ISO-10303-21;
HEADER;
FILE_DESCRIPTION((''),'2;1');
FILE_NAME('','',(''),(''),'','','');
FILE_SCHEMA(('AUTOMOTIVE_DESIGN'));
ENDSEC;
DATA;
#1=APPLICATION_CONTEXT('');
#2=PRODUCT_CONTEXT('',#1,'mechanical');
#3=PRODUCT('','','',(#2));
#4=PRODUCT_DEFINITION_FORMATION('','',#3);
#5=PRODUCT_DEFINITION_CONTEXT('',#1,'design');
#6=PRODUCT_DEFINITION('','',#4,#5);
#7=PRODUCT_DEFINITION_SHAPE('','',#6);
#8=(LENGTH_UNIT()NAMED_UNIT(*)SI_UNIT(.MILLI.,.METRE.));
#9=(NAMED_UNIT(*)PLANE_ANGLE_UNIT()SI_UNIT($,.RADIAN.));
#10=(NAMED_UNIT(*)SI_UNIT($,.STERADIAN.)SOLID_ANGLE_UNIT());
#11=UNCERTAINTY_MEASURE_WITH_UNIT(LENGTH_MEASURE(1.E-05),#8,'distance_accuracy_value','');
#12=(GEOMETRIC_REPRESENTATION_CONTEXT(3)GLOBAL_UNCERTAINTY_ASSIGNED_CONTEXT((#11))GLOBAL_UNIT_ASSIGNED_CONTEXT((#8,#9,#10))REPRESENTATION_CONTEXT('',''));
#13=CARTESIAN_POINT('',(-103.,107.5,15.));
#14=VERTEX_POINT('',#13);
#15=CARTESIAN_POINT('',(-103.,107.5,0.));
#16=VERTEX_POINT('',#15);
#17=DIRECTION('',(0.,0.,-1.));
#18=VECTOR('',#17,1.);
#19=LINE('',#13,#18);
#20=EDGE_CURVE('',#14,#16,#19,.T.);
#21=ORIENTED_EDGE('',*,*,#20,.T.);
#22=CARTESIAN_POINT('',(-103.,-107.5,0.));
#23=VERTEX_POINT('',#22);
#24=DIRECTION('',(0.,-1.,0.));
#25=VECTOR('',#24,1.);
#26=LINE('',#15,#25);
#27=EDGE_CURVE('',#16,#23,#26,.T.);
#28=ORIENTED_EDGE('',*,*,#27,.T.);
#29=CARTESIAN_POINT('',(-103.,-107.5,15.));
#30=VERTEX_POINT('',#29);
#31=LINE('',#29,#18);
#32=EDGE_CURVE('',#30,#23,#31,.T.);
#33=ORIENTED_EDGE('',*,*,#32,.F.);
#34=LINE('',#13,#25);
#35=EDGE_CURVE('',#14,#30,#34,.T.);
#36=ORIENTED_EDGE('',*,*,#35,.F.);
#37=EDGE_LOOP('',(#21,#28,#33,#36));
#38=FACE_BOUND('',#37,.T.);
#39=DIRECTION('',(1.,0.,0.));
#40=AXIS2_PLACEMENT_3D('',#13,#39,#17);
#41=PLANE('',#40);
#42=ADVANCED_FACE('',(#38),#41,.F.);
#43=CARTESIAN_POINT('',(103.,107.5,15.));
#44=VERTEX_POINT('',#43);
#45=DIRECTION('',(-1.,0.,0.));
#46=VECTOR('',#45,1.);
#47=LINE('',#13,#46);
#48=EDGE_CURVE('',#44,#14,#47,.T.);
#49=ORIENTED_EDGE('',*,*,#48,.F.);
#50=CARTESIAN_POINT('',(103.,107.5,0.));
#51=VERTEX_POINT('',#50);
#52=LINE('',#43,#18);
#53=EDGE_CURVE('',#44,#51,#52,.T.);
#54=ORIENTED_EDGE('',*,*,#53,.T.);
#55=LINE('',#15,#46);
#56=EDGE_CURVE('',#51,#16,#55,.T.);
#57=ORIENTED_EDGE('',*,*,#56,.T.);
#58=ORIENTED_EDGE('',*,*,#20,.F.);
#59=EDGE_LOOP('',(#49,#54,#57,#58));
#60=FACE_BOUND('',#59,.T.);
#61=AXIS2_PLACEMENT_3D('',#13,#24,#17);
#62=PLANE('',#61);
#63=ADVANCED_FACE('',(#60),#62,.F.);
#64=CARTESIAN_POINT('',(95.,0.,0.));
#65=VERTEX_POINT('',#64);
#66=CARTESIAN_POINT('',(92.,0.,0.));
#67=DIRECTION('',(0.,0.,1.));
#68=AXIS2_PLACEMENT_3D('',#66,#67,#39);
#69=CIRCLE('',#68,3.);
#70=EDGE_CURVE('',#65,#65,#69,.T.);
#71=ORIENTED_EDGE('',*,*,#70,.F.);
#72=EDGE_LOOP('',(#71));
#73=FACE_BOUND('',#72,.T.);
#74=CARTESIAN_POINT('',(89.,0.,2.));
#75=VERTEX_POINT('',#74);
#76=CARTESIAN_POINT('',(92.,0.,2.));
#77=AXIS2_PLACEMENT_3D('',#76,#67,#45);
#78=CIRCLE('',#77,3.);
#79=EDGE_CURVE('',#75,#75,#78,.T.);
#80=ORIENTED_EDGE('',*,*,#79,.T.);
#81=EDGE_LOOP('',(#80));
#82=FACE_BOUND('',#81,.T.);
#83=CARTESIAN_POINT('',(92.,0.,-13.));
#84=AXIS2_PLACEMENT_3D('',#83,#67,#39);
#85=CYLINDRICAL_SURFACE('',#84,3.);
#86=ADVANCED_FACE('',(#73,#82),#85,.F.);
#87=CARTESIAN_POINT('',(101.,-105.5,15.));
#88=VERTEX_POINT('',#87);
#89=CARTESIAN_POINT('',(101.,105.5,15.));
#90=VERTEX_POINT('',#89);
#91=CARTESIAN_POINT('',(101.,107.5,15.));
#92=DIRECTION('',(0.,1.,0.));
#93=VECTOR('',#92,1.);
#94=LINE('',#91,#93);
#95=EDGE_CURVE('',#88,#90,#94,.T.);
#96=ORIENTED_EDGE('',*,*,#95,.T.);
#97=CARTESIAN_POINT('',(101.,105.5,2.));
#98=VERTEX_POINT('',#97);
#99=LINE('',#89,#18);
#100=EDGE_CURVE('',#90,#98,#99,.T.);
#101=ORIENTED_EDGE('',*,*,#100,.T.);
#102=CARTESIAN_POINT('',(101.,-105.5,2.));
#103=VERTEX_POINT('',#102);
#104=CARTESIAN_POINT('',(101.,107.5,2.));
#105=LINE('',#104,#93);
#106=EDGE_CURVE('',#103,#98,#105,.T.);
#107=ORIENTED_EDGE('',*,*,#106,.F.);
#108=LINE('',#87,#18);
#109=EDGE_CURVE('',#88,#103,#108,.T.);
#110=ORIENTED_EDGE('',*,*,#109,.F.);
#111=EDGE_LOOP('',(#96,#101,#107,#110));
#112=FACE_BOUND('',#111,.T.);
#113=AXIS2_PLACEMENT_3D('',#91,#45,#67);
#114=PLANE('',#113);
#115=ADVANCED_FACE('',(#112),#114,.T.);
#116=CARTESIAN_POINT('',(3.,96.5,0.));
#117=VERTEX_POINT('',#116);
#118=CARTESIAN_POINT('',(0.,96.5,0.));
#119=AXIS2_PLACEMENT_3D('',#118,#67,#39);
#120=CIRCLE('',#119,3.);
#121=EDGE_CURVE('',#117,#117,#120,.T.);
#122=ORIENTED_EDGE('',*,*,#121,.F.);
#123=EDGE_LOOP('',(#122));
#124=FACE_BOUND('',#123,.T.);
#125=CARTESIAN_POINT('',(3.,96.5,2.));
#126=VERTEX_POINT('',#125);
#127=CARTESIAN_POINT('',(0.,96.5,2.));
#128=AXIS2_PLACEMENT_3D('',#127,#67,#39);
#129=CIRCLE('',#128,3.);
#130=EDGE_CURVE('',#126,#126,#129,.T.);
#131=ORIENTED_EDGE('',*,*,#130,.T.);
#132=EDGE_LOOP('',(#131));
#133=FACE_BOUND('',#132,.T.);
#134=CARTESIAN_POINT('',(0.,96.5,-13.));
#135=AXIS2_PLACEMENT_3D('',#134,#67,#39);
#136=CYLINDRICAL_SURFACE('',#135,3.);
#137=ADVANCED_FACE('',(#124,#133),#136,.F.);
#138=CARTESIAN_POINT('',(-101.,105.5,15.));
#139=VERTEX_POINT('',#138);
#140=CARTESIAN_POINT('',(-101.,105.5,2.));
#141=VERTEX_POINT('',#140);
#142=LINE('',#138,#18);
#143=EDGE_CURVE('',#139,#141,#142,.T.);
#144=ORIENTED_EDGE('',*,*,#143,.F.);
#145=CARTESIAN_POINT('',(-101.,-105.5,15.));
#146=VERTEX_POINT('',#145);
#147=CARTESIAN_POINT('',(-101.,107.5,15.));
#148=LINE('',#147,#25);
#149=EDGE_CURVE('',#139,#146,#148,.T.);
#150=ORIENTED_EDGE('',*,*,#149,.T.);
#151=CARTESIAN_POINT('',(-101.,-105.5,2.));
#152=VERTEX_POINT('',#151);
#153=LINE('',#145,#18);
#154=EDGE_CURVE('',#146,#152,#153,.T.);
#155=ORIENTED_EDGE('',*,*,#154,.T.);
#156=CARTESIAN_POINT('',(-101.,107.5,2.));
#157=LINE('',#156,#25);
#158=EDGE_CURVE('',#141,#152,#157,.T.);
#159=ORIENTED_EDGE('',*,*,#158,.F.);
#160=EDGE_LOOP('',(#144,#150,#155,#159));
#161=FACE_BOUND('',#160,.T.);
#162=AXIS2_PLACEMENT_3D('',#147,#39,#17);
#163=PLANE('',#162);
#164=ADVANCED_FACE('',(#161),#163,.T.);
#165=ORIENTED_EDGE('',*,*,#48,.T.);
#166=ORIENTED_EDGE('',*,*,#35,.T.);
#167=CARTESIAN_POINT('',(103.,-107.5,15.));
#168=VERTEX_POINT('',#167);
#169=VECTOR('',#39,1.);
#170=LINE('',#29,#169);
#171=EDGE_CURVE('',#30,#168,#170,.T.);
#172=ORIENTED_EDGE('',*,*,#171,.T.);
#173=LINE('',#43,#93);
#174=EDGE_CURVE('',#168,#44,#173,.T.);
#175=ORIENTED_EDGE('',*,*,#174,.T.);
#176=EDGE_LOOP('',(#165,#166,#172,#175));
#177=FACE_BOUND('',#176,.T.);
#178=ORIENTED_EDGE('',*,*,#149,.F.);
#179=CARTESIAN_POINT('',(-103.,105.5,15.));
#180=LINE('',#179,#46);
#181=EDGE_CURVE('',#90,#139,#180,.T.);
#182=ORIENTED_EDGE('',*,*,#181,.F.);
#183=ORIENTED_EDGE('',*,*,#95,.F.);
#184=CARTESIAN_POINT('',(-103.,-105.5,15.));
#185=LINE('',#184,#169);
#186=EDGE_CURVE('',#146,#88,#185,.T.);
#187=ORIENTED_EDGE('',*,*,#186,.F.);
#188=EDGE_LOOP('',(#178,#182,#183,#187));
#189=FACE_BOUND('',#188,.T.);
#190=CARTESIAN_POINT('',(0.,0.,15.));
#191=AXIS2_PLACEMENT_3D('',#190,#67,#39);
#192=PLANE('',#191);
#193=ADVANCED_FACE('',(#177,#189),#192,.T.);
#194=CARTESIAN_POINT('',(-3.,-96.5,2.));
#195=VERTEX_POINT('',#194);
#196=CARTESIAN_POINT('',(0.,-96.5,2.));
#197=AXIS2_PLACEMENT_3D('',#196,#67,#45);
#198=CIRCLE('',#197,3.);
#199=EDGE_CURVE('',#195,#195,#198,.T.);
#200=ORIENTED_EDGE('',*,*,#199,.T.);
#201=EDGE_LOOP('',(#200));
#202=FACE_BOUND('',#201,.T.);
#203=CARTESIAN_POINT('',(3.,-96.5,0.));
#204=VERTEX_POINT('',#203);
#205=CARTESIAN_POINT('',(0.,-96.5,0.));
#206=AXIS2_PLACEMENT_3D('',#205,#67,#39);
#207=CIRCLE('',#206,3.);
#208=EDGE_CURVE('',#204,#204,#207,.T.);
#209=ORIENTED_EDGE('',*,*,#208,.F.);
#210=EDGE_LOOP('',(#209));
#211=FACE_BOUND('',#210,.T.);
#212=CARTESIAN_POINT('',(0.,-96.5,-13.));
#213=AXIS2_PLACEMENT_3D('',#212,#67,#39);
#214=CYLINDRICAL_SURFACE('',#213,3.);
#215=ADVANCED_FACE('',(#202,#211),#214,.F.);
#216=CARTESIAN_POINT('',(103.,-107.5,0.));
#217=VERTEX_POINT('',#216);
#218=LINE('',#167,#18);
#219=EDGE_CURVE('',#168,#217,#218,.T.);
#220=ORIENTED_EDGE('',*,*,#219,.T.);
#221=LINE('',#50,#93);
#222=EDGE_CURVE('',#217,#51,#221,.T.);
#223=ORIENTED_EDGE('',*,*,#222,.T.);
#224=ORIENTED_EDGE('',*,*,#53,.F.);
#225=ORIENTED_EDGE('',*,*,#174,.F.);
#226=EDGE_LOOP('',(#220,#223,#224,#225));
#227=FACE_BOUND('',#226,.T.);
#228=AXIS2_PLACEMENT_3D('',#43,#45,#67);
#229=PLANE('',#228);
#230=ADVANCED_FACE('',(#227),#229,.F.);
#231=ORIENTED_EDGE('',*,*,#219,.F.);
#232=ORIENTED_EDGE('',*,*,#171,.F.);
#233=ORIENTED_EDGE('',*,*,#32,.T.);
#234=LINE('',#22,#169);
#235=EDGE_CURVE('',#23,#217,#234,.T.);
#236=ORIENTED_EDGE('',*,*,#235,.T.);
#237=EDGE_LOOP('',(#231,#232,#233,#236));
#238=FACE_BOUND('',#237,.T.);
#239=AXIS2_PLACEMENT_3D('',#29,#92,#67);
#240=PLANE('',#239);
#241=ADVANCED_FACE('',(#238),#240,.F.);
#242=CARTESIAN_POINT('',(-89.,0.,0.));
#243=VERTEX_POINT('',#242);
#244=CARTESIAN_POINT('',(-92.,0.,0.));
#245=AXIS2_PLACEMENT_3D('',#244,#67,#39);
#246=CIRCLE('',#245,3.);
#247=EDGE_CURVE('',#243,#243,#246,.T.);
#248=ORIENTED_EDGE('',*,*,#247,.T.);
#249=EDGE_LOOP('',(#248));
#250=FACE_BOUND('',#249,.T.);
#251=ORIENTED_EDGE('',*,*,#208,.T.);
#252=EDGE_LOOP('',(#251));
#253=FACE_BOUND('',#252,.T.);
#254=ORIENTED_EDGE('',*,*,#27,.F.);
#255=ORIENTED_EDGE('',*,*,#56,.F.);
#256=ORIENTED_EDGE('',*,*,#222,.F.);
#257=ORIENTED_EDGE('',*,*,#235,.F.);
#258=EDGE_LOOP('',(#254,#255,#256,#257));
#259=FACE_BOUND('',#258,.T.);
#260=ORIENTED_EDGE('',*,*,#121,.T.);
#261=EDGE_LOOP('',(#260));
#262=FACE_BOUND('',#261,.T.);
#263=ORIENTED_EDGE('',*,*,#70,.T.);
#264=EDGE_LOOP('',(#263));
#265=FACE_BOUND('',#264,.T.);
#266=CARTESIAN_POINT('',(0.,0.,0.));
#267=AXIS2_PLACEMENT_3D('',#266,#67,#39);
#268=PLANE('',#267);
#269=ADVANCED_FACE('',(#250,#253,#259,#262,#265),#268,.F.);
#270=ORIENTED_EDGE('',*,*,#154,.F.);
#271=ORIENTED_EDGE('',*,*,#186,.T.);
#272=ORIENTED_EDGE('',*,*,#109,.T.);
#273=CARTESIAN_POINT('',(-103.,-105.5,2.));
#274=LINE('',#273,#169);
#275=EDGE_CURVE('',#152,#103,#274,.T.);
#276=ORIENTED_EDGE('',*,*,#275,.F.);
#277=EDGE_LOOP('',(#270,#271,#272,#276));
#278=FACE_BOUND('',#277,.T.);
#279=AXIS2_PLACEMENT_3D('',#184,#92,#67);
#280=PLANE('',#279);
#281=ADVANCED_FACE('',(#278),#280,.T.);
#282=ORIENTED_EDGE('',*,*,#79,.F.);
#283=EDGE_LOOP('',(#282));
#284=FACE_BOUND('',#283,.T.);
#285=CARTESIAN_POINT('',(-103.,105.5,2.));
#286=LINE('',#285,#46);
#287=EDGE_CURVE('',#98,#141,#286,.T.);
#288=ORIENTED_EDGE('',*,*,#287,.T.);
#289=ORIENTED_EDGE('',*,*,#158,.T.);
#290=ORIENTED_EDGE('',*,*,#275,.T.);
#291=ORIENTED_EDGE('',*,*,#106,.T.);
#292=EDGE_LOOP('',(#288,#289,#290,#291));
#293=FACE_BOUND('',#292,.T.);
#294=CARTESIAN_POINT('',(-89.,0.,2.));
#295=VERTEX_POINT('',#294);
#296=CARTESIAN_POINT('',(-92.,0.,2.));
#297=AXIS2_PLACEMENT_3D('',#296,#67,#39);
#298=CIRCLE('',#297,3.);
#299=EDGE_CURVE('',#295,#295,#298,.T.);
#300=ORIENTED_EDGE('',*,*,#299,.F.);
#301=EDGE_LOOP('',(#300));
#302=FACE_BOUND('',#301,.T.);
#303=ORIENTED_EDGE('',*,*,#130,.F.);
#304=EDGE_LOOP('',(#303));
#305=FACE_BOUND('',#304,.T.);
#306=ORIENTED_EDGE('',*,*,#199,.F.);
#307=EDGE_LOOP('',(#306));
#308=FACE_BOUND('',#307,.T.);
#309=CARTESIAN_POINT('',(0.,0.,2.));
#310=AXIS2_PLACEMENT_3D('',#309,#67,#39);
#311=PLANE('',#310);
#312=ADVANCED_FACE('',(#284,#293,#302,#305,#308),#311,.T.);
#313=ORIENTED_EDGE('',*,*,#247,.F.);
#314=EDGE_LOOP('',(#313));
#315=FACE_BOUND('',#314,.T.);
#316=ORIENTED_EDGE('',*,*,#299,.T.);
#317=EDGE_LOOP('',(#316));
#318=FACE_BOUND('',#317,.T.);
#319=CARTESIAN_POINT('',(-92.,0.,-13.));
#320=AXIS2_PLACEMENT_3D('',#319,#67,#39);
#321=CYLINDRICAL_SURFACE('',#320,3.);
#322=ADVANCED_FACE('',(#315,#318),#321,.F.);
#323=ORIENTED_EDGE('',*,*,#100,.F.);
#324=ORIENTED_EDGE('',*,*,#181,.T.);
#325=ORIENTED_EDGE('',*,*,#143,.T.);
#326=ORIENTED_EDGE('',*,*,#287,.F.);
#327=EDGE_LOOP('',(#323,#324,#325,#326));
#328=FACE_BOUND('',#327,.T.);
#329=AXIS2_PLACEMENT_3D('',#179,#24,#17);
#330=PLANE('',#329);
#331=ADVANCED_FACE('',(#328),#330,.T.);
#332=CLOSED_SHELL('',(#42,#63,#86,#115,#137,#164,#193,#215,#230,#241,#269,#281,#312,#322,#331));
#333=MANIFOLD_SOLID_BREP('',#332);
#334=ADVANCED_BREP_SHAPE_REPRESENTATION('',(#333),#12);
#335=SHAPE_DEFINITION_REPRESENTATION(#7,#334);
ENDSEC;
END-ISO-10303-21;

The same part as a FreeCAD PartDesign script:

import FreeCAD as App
import Part
import Sketcher

V = App.Vector
Q = App.Units.Quantity


def faces_at(feature, points):
    """Names of the faces that lie closest to the given points."""
    faces = feature.Shape.Faces
    near = lambda p: min(range(len(faces)), key=lambda i: faces[i].distToShape(Part.Vertex(*p))[0])
    return sorted({f"Face{near(p) + 1}" for p in points})


def add_polygon(sketch, points):
    """Adds a closed chain of lines whose ends are joined by coincident constraints."""
    first, n = sketch.GeometryCount, len(points)
    for a, b in zip(points, points[1:] + points[:1]):
        sketch.addGeometry(Part.LineSegment(App.Vector(*a, 0), App.Vector(*b, 0)), False)
    for i in range(n):
        sketch.addConstraint(Sketcher.Constraint("Coincident", first + i, 2, first + (i + 1) % n, 1))

doc = App.newDocument("Part")
params = doc.addObject("Spreadsheet::Sheet", "Params")
for row, (alias, value) in enumerate([
    ("sketch1_width", "206 mm"),
    ("sketch1_height", "215 mm"),
    ("pad1_length", "15 mm"),
    ("thickness_wall", "2 mm"),
    ("sketch2_diameter", "6 mm"),
    ("pocket1_length", "15 mm"),
], start=1):
    params.set(f"A{row}", alias)
    params.set(f"B{row}", "=" + value)
    params.setAlias(f"B{row}", alias)

body = doc.addObject("PartDesign::Body", "Body")

# Sketch on XY plane
sketch1 = body.newObject("Sketcher::SketchObject", "Sketch")
sketch1.AttachmentSupport = (doc.getObject("XY_Plane"), [""])
sketch1.MapMode = "FlatFace"
add_polygon(sketch1, [(-103, 108), (-103, -108), (103, -108), (103, 108)])  # lines 0-3
sketch1.addConstraint([
    Sketcher.Constraint("Vertical", 0),
    Sketcher.Constraint("Horizontal", 1),
    Sketcher.Constraint("Vertical", 2),
    Sketcher.Constraint("Horizontal", 3),
    Sketcher.Constraint("Symmetric", 0, 2, 2, 2, -1, 1),
    Sketcher.Constraint("DistanceX", 1, 1, 1, 2, Q("206 mm")),
    Sketcher.Constraint("DistanceY", 0, 2, 0, 1, Q("215 mm")),
])
sketch1.setExpression("Constraints[9]", "Params.sketch1_width")
sketch1.setExpression("Constraints[10]", "Params.sketch1_height")
pad1 = body.newObject("PartDesign::Pad", "Pad")
pad1.Profile = sketch1
pad1.setExpression("Length", "Params.pad1_length")
doc.recompute()

thickness = body.newObject("PartDesign::Thickness", "Thickness")
thickness.Base = (pad1, faces_at(pad1, [(0, 0, 15)]))
thickness.setExpression("Value", "Params.thickness_wall")
thickness.Reversed = True
thickness.Join = "Intersection"

# Sketch on XY plane
sketch2 = body.newObject("Sketcher::SketchObject", "Sketch001")
sketch2.AttachmentSupport = (doc.getObject("XY_Plane"), [""])
sketch2.MapMode = "FlatFace"
sketch2.AttachmentOffset = App.Placement(V(0, 0, 2), App.Rotation())
sketch2.addGeometry([
    Part.Circle(V(-92, 0, 0), V(0, 0, 1), 3),
    Part.Circle(V(0, 96.5, 0), V(0, 0, 1), 3),
    Part.Circle(V(92, 0, 0), V(0, 0, 1), 3),
    Part.Circle(V(0, -96.5, 0), V(0, 0, 1), 3),
], False)
sketch2.addConstraint([
    Sketcher.Constraint("Equal", 0, 1),
    Sketcher.Constraint("Equal", 1, 2),
    Sketcher.Constraint("Equal", 2, 3),
    Sketcher.Constraint("Symmetric", 0, 3, 2, 3, -1, 1),
    Sketcher.Constraint("Symmetric", 1, 3, 3, 3, -1, 1),
    Sketcher.Constraint("PointOnObject", 0, 3, -1),
    Sketcher.Constraint("PointOnObject", 1, 3, -2),
    Sketcher.Constraint("Diameter", 0, Q("6 mm")),
    Sketcher.Constraint("DistanceX", 0, 3, -1, 1, Q("92 mm")),
    Sketcher.Constraint("DistanceY", 3, 3, 1, 3, Q("193 mm")),
])
sketch2.setExpression("Constraints[7]", "Params.sketch2_diameter")
pocket1 = body.newObject("PartDesign::Pocket", "Pocket")
pocket1.Profile = sketch2
pocket1.setExpression("Length", "Params.pocket1_length")

doc.recompute()
